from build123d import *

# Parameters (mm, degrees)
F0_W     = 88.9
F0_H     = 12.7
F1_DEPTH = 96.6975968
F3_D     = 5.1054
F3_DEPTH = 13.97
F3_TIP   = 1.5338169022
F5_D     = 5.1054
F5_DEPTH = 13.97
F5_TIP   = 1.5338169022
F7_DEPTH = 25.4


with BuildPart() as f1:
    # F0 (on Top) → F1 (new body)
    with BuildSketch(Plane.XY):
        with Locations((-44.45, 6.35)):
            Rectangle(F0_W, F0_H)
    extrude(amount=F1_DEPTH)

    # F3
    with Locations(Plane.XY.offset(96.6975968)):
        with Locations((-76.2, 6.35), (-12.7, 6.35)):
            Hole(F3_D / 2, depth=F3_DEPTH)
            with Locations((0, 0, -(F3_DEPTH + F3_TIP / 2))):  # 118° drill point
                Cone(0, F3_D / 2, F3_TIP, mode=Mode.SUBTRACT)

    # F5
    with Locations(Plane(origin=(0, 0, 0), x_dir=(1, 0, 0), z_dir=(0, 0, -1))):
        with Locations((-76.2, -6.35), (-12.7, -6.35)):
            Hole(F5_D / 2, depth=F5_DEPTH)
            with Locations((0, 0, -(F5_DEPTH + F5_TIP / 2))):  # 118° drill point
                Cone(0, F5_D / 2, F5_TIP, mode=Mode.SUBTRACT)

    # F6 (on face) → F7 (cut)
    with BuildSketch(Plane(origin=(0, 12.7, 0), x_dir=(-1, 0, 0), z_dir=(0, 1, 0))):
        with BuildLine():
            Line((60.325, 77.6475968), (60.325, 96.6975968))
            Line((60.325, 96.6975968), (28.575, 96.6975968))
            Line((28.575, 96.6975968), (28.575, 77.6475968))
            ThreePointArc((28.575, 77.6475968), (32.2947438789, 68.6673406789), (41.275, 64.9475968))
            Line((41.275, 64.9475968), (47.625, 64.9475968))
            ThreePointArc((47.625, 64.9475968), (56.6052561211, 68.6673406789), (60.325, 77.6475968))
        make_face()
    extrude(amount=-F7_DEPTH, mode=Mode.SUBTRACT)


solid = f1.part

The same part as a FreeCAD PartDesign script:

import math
import FreeCAD as App
import Part
import Sketcher
Q = App.Units.Quantity


def add_polygon(sketch, points):
    """Adds a closed chain of lines whose ends are joined by coincident constraints."""
    first, n = sketch.GeometryCount, len(points)
    for a, b in zip(points, points[1:] + points[:1]):
        sketch.addGeometry(Part.LineSegment(App.Vector(*a, 0), App.Vector(*b, 0)), False)
    for i in range(n):
        sketch.addConstraint(Sketcher.Constraint("Coincident", first + i, 2, first + (i + 1) % n, 1))

doc = App.newDocument("Part")
params = doc.addObject("Spreadsheet::Sheet", "Params")
for row, (alias, value) in enumerate([
    ("sketch1_width", "3.5 in"),
    ("sketch1_height", "0.5 in"),
    ("pad1_length", "96.697597 mm"),
    ("sketch2_diameter", "0.201 in"),
    ("hole_diameter", "0.201 in"),
    ("hole_depth", "0.55 in"),
    ("sketch3_diameter", "0.201 in"),
    ("hole2_diameter", "0.201 in"),
    ("hole2_depth", "0.55 in"),
    ("sketch4_radius", "0.5 in"),
    ("sketch4_width", "1.25 in"),
    ("sketch4_height", "0.75 in"),
    ("pocket1_length", "1 in"),
], start=1):
    params.set(f"A{row}", alias)
    params.set(f"B{row}", "=" + value)
    params.setAlias(f"B{row}", alias)

body = doc.addObject("PartDesign::Body", "Body")

sketch1 = doc.addObject("Sketcher::SketchObject", "Sketch")
body.addObject(sketch1)
sketch1.AttachmentSupport = (doc.XY_Plane, [""])
sketch1.MapMode = "FlatFace"
add_polygon(sketch1, [(-88.9, 12.7), (-88.9, 0), (0, 0), (0, 12.7)])
sketch1.addConstraint(Sketcher.Constraint("Vertical", 0))
sketch1.addConstraint(Sketcher.Constraint("Horizontal", 1))
sketch1.addConstraint(Sketcher.Constraint("Vertical", 2))
sketch1.addConstraint(Sketcher.Constraint("Horizontal", 3))
sketch1.addConstraint(Sketcher.Constraint("Coincident", 1, 2, -1, 1))
sketch1.addConstraint(Sketcher.Constraint("DistanceX", 1, 1, 1, 2, Q("3.5 in")))
sketch1.addConstraint(Sketcher.Constraint("DistanceY", 0, 2, 0, 1, Q("0.5 in")))
sketch1.setExpression("Constraints[9]", "Params.sketch1_width")
sketch1.setExpression("Constraints[10]", "Params.sketch1_height")
pad1 = doc.addObject("PartDesign::Pad", "Pad")
body.addObject(pad1)
pad1.Profile = sketch1
pad1.setExpression("Length", "Params.pad1_length")

sketch2 = doc.addObject("Sketcher::SketchObject", "Sketch001")
body.addObject(sketch2)
sketch2.AttachmentSupport = (doc.XY_Plane, [""])
sketch2.MapMode = "FlatFace"
sketch2.AttachmentOffset = App.Placement(App.Vector(0, 0, 96.697597), App.Rotation())
sketch2.addGeometry(Part.Circle(App.Vector(-76.2, 6.35, 0), App.Vector(0, 0, 1), 2.5527), False)
sketch2.addGeometry(Part.Circle(App.Vector(-12.7, 6.35, 0), App.Vector(0, 0, 1), 2.5527), False)
sketch2.addConstraint(Sketcher.Constraint("Equal", 0, 1))
sketch2.addConstraint(Sketcher.Constraint("Horizontal", 0, 3, 1, 3))
sketch2.addConstraint(Sketcher.Constraint("Diameter", 0, Q("0.201 in")))
sketch2.addConstraint(Sketcher.Constraint("DistanceX", 0, 3, -1, 1, Q("3 in")))
sketch2.addConstraint(Sketcher.Constraint("DistanceX", 1, 3, -1, 1, Q("0.5 in")))
sketch2.addConstraint(Sketcher.Constraint("DistanceY", -1, 1, 0, 3, Q("0.25 in")))
sketch2.setExpression("Constraints[2]", "Params.sketch2_diameter")
doc.recompute()
hole = doc.addObject("PartDesign::Hole", "Hole")
body.addObject(hole)
hole.Profile = sketch2
hole.ThreadType = "None"
hole.setExpression("Diameter", "Params.hole_diameter")
hole.DepthType = "Dimension"
hole.setExpression("Depth", "Params.hole_depth")
hole.DrillPoint = "Angled"
hole.DrillPointAngle = 118

sketch3 = doc.addObject("Sketcher::SketchObject", "Sketch002")
body.addObject(sketch3)
sketch3.AttachmentSupport = (doc.XY_Plane, [""])
sketch3.MapMode = "FlatFace"
sketch3.addGeometry(Part.Circle(App.Vector(-76.2, 6.35, 0), App.Vector(0, 0, 1), 2.5527), False)
sketch3.addGeometry(Part.Circle(App.Vector(-12.7, 6.35, 0), App.Vector(0, 0, 1), 2.5527), False)
sketch3.addConstraint(Sketcher.Constraint("Equal", 0, 1))
sketch3.addConstraint(Sketcher.Constraint("Horizontal", 0, 3, 1, 3))
sketch3.addConstraint(Sketcher.Constraint("Diameter", 0, Q("0.201 in")))
sketch3.addConstraint(Sketcher.Constraint("DistanceX", 0, 3, -1, 1, Q("3 in")))
sketch3.addConstraint(Sketcher.Constraint("DistanceX", 1, 3, -1, 1, Q("0.5 in")))
sketch3.addConstraint(Sketcher.Constraint("DistanceY", -1, 1, 0, 3, Q("0.25 in")))
sketch3.setExpression("Constraints[2]", "Params.sketch3_diameter")
doc.recompute()
hole2 = doc.addObject("PartDesign::Hole", "Hole001")
body.addObject(hole2)
hole2.Profile = sketch3
hole2.ThreadType = "None"
hole2.setExpression("Diameter", "Params.hole2_diameter")
hole2.DepthType = "Dimension"
hole2.setExpression("Depth", "Params.hole2_depth")
hole2.DrillPoint = "Angled"
hole2.DrillPointAngle = 118
hole2.Reversed = True

sketch4 = doc.addObject("Sketcher::SketchObject", "Sketch003")
body.addObject(sketch4)
sketch4.AttachmentSupport = (doc.XZ_Plane, [""])
sketch4.MapMode = "FlatFace"
sketch4.AttachmentOffset = App.Placement(App.Vector(0, 0, -0.5 * 25.4), App.Rotation())
sketch4.addGeometry(Part.LineSegment(App.Vector(-60.325, 77.647597, 0), App.Vector(-60.325, 96.697597, 0)), False)
sketch4.addGeometry(Part.LineSegment(App.Vector(-60.325, 96.697597, 0), App.Vector(-28.575, 96.697597, 0)), False)
sketch4.addGeometry(Part.LineSegment(App.Vector(-28.575, 96.697597, 0), App.Vector(-28.575, 77.647597, 0)), False)
sketch4.addGeometry(Part.ArcOfCircle(Part.Circle(App.Vector(-41.275, 77.647597, 0), App.Vector(0, 0, 1), 12.7), math.radians(-90), math.radians(0)), False)
sketch4.addGeometry(Part.LineSegment(App.Vector(-41.275, 64.947597, 0), App.Vector(-47.625, 64.947597, 0)), False)
sketch4.addGeometry(Part.ArcOfCircle(Part.Circle(App.Vector(-47.625, 77.647597, 0), App.Vector(0, 0, 1), 12.7), math.radians(180), math.radians(270)), False)
sketch4.addConstraint(Sketcher.Constraint("Coincident", 0, 2, 1, 1))
sketch4.addConstraint(Sketcher.Constraint("Coincident", 1, 2, 2, 1))
sketch4.addConstraint(Sketcher.Constraint("Tangent", 2, 2, 3, 2))
sketch4.addConstraint(Sketcher.Constraint("Tangent", 3, 1, 4, 1))
sketch4.addConstraint(Sketcher.Constraint("Tangent", 4, 2, 5, 2))
sketch4.addConstraint(Sketcher.Constraint("Tangent", 5, 1, 0, 1))
sketch4.addConstraint(Sketcher.Constraint("Vertical", 0))
sketch4.addConstraint(Sketcher.Constraint("Horizontal", 1))
sketch4.addConstraint(Sketcher.Constraint("Vertical", 2))
sketch4.addConstraint(Sketcher.Constraint("Horizontal", 4))
sketch4.addConstraint(Sketcher.Constraint("Equal", 3, 5))
sketch4.addConstraint(Sketcher.Constraint("Radius", 3, Q("0.5 in")))
sketch4.addConstraint(Sketcher.Constraint("DistanceX", 1, 1, 1, 2, Q("1.25 in")))
sketch4.addConstraint(Sketcher.Constraint("DistanceY", 0, 1, 0, 2, Q("0.75 in")))
sketch4.addConstraint(Sketcher.Constraint("DistanceX", 3, 3, -1, 1, Q("1.625 in")))
sketch4.addConstraint(Sketcher.Constraint("DistanceY", -1, 1, 3, 3, Q("77.647597 mm")))
sketch4.setExpression("Constraints[11]", "Params.sketch4_radius")
sketch4.setExpression("Constraints[12]", "Params.sketch4_width")
sketch4.setExpression("Constraints[13]", "Params.sketch4_height")
pocket1 = doc.addObject("PartDesign::Pocket", "Pocket")
body.addObject(pocket1)
pocket1.Profile = sketch4
pocket1.setExpression("Length", "Params.pocket1_length")
pocket1.Reversed = True

doc.recompute()
